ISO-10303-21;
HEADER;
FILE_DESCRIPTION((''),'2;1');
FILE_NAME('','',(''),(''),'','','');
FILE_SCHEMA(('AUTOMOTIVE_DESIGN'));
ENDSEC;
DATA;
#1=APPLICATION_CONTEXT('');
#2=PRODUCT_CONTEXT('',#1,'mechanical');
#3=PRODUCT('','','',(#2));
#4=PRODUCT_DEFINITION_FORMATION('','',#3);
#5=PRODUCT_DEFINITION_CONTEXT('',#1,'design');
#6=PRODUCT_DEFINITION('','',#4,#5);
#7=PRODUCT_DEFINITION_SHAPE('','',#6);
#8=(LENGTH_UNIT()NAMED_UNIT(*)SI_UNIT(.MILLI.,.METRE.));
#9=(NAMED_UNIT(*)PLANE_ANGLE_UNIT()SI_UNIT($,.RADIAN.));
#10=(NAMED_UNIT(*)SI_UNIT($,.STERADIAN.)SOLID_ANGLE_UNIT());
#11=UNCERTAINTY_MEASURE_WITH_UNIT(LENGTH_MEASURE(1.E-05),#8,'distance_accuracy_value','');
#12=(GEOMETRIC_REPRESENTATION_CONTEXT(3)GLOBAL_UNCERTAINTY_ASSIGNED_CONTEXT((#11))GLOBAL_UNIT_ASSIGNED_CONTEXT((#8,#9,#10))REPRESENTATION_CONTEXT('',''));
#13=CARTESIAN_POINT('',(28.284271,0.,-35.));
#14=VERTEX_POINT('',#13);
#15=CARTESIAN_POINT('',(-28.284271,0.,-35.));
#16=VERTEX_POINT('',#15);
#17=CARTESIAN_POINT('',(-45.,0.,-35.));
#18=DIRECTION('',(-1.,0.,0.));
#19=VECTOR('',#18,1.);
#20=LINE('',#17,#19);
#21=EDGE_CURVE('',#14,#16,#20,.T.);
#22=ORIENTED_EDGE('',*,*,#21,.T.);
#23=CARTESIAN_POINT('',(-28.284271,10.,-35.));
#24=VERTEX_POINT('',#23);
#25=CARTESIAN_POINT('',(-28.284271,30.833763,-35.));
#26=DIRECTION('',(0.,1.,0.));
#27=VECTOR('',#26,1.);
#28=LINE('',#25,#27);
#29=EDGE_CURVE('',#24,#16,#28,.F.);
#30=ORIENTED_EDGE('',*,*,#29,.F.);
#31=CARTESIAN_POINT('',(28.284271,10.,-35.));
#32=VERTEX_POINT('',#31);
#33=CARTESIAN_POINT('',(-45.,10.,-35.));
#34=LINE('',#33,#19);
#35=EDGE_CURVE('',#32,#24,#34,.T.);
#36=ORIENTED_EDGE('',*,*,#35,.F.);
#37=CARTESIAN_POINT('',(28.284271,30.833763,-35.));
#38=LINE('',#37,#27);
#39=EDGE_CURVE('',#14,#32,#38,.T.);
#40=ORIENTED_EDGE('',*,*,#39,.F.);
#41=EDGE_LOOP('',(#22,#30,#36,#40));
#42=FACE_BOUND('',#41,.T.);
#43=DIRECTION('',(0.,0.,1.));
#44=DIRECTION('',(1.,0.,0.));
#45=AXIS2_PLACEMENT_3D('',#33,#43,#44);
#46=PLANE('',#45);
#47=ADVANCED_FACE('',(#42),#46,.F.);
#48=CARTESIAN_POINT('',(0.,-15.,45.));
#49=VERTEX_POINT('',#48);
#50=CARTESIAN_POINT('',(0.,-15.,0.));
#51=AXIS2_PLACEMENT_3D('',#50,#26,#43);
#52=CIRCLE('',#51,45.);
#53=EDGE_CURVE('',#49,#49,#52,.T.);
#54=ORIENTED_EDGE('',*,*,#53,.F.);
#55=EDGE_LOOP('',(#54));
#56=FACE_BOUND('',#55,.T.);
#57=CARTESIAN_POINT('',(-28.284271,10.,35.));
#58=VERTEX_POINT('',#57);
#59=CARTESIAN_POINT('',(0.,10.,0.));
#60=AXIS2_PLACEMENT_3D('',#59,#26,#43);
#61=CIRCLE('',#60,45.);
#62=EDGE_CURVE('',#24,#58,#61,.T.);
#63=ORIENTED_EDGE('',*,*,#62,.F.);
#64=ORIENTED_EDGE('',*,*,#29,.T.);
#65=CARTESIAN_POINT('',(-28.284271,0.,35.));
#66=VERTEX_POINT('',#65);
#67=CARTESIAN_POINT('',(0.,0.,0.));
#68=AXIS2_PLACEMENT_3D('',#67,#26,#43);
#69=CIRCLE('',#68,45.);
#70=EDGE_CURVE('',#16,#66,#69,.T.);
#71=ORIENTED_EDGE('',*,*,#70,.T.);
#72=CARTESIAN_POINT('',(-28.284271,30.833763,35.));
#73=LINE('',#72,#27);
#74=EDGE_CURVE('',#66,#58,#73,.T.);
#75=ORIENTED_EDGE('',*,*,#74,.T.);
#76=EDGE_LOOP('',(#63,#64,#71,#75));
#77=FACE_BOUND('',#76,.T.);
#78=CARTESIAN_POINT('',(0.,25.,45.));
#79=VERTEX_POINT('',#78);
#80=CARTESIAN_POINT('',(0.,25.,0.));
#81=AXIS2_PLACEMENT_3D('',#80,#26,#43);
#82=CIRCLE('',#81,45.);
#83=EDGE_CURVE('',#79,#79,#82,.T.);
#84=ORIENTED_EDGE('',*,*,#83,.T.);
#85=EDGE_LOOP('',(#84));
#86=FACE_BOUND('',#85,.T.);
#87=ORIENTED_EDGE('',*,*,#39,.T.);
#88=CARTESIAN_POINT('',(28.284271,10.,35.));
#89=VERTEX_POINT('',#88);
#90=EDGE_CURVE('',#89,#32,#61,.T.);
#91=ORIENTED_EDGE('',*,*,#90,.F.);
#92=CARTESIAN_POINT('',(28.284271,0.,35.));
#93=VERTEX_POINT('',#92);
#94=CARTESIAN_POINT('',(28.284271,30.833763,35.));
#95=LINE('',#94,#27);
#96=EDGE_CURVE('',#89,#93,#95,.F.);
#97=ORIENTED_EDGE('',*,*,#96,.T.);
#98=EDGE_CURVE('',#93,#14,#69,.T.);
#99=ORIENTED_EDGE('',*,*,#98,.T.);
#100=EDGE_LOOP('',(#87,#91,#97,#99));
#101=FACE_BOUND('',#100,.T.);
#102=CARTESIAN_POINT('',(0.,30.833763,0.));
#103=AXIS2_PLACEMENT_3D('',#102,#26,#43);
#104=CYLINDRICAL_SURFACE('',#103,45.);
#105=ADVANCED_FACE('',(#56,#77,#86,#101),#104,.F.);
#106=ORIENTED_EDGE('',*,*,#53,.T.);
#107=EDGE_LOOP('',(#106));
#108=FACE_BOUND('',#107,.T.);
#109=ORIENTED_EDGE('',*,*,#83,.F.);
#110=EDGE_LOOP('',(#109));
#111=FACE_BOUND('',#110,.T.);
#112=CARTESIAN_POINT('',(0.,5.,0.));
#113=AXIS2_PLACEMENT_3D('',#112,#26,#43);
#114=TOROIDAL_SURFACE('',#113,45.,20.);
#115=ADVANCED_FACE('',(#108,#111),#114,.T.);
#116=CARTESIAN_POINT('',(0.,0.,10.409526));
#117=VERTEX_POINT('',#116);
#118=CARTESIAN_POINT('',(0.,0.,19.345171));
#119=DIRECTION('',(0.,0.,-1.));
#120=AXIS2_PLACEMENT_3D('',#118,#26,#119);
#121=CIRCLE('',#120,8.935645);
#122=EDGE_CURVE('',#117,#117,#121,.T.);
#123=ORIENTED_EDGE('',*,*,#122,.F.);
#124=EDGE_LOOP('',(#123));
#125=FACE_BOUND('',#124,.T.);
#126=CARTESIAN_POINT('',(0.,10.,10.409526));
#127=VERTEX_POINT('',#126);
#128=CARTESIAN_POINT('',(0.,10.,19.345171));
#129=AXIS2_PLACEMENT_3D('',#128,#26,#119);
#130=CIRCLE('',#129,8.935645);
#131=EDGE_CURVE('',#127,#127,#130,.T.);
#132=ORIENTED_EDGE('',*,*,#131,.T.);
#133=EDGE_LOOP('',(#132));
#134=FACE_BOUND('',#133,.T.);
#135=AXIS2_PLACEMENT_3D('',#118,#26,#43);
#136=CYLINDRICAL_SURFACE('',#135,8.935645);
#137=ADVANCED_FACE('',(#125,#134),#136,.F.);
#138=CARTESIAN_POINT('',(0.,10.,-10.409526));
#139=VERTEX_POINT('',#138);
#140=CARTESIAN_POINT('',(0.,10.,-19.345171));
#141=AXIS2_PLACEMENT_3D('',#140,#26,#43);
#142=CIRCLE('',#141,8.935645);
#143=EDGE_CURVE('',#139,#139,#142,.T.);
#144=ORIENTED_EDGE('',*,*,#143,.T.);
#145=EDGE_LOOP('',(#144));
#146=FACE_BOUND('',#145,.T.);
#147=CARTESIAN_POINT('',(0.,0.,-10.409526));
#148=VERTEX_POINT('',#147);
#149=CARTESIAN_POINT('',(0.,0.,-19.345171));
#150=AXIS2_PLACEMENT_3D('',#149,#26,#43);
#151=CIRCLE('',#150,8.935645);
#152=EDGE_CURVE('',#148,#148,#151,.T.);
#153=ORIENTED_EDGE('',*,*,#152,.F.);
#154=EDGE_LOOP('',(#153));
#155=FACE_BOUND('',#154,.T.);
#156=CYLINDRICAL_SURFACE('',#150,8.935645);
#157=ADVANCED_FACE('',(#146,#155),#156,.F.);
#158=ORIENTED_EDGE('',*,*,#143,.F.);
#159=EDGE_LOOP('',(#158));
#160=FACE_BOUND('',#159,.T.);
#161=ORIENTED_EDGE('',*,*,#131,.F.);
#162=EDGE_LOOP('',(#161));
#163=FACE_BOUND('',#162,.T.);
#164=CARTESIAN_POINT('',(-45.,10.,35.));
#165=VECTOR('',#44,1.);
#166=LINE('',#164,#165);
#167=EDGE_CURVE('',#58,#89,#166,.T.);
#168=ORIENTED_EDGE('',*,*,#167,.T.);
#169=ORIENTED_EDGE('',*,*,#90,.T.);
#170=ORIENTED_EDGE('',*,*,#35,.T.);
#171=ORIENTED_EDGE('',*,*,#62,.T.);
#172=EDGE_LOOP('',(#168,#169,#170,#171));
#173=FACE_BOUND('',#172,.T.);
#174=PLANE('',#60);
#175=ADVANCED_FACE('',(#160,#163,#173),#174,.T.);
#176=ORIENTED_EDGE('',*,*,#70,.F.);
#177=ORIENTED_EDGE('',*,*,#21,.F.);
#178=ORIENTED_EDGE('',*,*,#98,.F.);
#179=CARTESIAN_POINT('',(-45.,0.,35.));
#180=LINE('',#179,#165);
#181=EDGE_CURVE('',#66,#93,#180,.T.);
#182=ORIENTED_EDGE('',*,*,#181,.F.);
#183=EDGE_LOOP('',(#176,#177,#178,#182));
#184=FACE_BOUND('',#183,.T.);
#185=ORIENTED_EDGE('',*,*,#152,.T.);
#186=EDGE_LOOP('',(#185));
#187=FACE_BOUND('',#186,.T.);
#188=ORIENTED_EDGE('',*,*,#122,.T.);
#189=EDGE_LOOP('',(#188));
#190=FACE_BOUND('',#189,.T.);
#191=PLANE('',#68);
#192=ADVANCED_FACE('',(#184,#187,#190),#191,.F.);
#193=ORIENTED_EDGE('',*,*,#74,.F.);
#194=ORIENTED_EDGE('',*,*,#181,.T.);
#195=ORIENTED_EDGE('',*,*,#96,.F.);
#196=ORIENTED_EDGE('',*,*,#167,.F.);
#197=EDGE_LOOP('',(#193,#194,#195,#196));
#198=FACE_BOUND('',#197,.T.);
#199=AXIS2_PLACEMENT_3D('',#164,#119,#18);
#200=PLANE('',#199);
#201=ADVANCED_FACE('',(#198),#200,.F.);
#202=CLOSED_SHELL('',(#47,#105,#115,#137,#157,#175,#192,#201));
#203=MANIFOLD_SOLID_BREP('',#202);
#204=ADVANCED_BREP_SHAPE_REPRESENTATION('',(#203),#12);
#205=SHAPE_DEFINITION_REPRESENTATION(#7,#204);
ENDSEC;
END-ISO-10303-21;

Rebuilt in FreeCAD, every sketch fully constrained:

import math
import FreeCAD as App
import Part
import Sketcher
from FreeCAD import Vector


def edges_at(feature, points):
    """Names of the edges that pass closest to the given points."""
    edges = feature.Shape.Edges
    near = lambda p: min(range(len(edges)), key=lambda i: edges[i].distToShape(Part.Vertex(*p))[0])
    return sorted({f"Edge{near(p) + 1}" for p in points})

doc = App.newDocument("Part")
body = doc.addObject("PartDesign::Body", "Body")

sketch1 = doc.addObject("Sketcher::SketchObject", "Sketch")
body.addObject(sketch1)
sketch1.AttachmentSupport = (doc.XZ_Plane, [""])
sketch1.MapMode = "FlatFace"
sketch1.addGeometry([
    Part.LineSegment(Vector(-45, -35, 0), Vector(-45, 35, 0)),
    Part.LineSegment(Vector(-45, 35, 0), Vector(45, 35, 0)),
    Part.LineSegment(Vector(45, 35, 0), Vector(45, -35, 0)),
    Part.LineSegment(Vector(45, -35, 0), Vector(-45, -35, 0)),
], False)
sketch1.addConstraint([
    Sketcher.Constraint("Coincident", 0, 2, 1, 1),
    Sketcher.Constraint("Coincident", 1, 2, 2, 1),
    Sketcher.Constraint("Coincident", 2, 2, 3, 1),
    Sketcher.Constraint("Coincident", 3, 2, 0, 1),
    Sketcher.Constraint("Vertical", 0),
    Sketcher.Constraint("Horizontal", 1),
    Sketcher.Constraint("Vertical", 2),
    Sketcher.Constraint("Horizontal", 3),
    Sketcher.Constraint("Symmetric", 0, 2, 2, 2, -1, 1),
    Sketcher.Constraint("DistanceX", 1, 1, 1, 2, 90.0),
    Sketcher.Constraint("DistanceY", 0, 1, 0, 2, 70.0),
])
pad1 = doc.addObject("PartDesign::Pad", "Pad")
body.addObject(pad1)
pad1.Profile = sketch1
pad1.Length = 10
pad1.Reversed = True
doc.recompute()

fillet = doc.addObject("PartDesign::Fillet", "Fillet")
body.addObject(fillet)
fillet.Base = (pad1, edges_at(pad1, [
    (45, 5, 35),
    (-45, 5, 35),
    (-45, 5, -35),
    (45, 5, -35),
]))
fillet.Radius = 10

sketch2 = doc.addObject("Sketcher::SketchObject", "Sketch001")
body.addObject(sketch2)
sketch2.AttachmentSupport = (doc.XZ_Plane, [""])
sketch2.MapMode = "FlatFace"
sketch2.AttachmentOffset = App.Placement(Vector(0, 0, -10), App.Rotation())
sketch2.addGeometry([
    Part.Circle(Vector(0, -19, 0), Vector(0, 0, 1), 9),
    Part.Circle(Vector(0, 19, 0), Vector(0, 0, 1), 9),
], False)
sketch2.addConstraint([
    Sketcher.Constraint("Equal", 0, 1),
    Sketcher.Constraint("Symmetric", 0, 3, 1, 3, -1, 1),
    Sketcher.Constraint("PointOnObject", 0, 3, -2),
    Sketcher.Constraint("Diameter", 0, 17.87129),
    Sketcher.Constraint("DistanceY", 0, 3, -1, 1, 19.345171),
])
pocket1 = doc.addObject("PartDesign::Pocket", "Pocket")
body.addObject(pocket1)
pocket1.Profile = sketch2
pocket1.Length = 10
pocket1.Reversed = True

sketch3 = doc.addObject("Sketcher::SketchObject", "Sketch002")
body.addObject(sketch3)
sketch3.AttachmentSupport = (doc.XY_Plane, [""])
sketch3.MapMode = "FlatFace"
sketch3.addGeometry([
    Part.LineSegment(Vector(45, 25, 0), Vector(45, -15, 0)),
    Part.ArcOfCircle(Part.Circle(Vector(45, 5, 0), Vector(0, 0, 1), 20), math.radians(-90), math.radians(90)),
], False)
sketch3.addConstraint([
    Sketcher.Constraint("Coincident", 0, 1, 1, 2),
    Sketcher.Constraint("Coincident", 1, 1, 0, 2),
    Sketcher.Constraint("Vertical", 0),
    Sketcher.Constraint("Vertical", 1, 3, 0, 1),
    Sketcher.Constraint("Radius", 1, 20.0),
    Sketcher.Constraint("DistanceX", -1, 1, 1, 3, 45.0),
    Sketcher.Constraint("DistanceY", -1, 1, 1, 3, 5.0),
])
revolution = doc.addObject("PartDesign::Revolution", "Revolution")
body.addObject(revolution)
revolution.Profile = sketch3
revolution.ReferenceAxis = (sketch3, ["V_Axis"])
revolution.Angle = 360

doc.recompute()
